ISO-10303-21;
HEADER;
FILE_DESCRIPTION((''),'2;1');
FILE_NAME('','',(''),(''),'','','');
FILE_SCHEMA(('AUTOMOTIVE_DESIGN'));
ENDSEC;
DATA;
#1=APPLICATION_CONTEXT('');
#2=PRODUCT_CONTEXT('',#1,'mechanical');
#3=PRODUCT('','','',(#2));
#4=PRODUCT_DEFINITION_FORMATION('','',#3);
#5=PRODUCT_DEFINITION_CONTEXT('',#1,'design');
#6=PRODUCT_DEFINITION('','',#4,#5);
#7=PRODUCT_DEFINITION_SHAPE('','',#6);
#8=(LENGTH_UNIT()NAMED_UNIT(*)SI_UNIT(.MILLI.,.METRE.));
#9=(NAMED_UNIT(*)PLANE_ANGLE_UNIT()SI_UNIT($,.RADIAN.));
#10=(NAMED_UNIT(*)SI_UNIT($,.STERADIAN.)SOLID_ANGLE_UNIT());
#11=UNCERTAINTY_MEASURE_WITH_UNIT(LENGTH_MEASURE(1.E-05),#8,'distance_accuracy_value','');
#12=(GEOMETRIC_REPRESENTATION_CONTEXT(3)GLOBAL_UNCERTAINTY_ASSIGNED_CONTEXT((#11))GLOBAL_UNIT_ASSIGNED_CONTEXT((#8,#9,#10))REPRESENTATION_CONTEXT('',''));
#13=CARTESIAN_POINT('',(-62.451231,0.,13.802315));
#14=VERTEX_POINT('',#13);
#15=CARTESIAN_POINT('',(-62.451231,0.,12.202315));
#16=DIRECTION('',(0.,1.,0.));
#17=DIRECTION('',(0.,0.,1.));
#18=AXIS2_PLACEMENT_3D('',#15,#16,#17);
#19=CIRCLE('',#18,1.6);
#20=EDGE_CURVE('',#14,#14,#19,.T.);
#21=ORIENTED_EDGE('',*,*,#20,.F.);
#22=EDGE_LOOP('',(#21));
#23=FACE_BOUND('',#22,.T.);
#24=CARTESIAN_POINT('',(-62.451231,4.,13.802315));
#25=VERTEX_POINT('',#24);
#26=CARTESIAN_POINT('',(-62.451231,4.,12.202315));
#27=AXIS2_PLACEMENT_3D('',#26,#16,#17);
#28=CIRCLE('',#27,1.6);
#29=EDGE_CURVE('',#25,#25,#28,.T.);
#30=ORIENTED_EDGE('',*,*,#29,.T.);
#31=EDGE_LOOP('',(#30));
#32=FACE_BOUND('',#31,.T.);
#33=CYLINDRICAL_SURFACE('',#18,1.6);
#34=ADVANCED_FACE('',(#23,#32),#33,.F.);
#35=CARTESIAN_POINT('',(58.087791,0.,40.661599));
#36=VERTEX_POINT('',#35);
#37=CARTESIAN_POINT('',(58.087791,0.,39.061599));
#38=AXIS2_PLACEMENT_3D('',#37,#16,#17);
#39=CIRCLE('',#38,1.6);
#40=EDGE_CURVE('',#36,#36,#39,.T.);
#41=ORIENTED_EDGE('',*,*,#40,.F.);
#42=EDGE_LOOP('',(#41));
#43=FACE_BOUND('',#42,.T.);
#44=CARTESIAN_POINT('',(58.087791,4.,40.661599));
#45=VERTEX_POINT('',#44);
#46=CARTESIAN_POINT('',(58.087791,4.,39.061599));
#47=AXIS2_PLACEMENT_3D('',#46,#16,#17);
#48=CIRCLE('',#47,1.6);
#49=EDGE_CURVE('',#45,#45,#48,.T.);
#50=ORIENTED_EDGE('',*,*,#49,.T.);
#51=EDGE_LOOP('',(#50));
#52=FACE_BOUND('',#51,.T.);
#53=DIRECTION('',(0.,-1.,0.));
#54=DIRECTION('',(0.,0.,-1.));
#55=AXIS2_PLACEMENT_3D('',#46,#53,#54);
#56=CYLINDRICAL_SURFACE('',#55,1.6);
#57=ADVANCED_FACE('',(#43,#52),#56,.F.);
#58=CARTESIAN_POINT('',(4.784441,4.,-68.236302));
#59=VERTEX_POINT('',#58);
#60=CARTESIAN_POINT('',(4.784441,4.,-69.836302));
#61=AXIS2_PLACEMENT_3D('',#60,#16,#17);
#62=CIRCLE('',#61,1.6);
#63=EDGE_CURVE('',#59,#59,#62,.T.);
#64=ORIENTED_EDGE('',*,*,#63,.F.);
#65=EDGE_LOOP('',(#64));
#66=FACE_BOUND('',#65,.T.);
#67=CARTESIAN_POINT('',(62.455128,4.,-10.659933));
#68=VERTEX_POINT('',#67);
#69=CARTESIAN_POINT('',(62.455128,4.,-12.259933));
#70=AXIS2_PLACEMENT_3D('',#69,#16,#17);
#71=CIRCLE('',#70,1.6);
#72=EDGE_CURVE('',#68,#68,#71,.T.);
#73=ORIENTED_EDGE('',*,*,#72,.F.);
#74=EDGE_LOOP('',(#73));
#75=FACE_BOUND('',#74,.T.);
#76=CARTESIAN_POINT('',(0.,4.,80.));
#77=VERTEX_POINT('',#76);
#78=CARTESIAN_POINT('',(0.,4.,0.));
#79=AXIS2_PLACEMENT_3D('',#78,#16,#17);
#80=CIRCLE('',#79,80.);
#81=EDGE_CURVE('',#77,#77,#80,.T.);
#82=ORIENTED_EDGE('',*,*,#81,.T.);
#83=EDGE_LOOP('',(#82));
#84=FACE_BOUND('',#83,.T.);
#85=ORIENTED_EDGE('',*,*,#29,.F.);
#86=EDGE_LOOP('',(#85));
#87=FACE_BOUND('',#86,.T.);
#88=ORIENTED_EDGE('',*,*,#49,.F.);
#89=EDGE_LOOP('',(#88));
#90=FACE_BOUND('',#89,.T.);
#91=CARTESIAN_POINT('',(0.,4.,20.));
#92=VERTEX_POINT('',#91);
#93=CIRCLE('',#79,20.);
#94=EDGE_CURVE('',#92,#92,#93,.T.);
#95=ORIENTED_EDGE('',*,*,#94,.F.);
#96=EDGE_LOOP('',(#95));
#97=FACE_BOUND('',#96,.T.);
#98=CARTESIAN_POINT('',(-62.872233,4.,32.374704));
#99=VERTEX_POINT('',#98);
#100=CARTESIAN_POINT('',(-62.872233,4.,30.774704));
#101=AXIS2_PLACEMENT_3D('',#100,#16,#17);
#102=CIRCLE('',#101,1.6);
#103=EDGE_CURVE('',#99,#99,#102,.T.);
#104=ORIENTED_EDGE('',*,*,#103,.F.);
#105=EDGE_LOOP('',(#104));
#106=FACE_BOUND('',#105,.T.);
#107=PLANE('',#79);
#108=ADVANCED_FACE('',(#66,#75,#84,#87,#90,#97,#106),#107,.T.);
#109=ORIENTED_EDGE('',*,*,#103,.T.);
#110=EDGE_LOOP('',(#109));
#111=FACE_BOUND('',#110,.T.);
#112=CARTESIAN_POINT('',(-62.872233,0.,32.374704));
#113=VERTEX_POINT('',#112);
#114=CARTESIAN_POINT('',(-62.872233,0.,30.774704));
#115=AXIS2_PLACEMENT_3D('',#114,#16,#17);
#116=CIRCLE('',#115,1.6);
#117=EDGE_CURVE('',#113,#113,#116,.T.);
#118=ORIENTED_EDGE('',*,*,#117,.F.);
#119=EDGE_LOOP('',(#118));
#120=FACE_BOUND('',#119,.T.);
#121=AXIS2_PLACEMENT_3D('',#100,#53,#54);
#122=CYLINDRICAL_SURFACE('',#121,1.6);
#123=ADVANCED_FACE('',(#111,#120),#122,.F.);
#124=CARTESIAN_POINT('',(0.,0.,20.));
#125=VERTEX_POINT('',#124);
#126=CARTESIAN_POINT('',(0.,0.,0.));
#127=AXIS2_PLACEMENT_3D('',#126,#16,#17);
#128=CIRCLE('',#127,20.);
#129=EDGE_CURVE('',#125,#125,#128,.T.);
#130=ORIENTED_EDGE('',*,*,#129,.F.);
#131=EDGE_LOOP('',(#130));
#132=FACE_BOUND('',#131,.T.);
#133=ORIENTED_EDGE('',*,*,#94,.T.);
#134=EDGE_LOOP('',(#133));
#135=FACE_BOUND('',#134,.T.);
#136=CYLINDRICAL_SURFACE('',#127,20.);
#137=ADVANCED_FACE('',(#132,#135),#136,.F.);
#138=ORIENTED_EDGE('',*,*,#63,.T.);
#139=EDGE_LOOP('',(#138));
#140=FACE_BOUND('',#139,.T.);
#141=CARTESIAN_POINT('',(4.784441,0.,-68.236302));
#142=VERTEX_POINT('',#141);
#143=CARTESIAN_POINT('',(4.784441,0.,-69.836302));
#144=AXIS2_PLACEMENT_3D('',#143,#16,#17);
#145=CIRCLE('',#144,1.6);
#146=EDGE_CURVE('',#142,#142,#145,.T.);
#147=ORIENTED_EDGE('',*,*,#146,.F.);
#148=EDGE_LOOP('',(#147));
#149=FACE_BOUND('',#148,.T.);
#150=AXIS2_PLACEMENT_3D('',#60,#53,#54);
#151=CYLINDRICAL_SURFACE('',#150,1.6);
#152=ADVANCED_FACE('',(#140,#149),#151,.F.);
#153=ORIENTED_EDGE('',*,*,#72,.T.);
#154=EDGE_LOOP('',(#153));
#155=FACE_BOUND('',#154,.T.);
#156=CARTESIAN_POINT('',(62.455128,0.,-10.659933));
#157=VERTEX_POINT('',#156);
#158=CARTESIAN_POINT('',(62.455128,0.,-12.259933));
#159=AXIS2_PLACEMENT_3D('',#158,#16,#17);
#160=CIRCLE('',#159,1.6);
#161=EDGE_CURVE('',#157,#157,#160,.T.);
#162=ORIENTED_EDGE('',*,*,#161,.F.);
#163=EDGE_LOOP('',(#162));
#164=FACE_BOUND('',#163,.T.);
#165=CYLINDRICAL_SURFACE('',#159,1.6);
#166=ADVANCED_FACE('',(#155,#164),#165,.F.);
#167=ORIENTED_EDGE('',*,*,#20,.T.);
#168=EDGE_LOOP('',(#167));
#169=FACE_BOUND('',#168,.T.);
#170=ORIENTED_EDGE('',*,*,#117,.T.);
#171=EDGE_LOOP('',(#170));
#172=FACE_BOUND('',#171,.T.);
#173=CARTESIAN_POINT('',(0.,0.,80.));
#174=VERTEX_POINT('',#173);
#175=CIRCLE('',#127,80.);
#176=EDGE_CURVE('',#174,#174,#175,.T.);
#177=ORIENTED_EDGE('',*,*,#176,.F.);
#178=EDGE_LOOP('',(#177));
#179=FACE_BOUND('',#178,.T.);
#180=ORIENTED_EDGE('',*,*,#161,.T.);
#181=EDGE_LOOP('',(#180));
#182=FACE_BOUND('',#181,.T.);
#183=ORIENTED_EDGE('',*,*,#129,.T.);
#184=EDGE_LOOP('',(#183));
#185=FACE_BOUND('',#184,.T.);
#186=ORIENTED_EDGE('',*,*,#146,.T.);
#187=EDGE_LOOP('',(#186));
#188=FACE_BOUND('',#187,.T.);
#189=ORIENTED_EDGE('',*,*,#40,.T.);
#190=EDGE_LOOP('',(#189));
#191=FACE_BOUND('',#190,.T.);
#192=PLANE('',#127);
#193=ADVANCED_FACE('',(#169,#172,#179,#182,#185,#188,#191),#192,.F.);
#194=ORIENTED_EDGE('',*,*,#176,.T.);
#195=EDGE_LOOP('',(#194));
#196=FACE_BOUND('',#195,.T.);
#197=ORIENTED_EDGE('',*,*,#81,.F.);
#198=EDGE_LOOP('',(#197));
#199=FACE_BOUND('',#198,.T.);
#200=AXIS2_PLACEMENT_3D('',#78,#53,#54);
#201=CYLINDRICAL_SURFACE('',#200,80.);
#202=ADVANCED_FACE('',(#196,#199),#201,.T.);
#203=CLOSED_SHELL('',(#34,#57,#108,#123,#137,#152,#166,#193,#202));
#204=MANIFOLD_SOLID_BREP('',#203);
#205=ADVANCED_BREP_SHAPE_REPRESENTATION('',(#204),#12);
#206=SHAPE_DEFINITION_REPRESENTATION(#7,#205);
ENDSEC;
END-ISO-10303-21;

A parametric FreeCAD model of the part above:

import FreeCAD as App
import Part
import Sketcher
from FreeCAD import Vector
Q = App.Units.Quantity

doc = App.newDocument("Part")
body = doc.addObject("PartDesign::Body", "Body")

sketch1 = body.newObject("Sketcher::SketchObject", "Sketch")
sketch1.AttachmentSupport = (doc.getObject("XZ_Plane"), [""])
sketch1.MapMode = "FlatFace"
sketch1.addGeometry(Part.Circle(Vector(0, 0, 0), Vector(0, 0, 1), 80), False)
sketch1.addGeometry(Part.Circle(Vector(-62.9, 30.8, 0), Vector(0, 0, 1), 1.6), False)
sketch1.addGeometry(Part.Circle(Vector(4.8, -69.8, 0), Vector(0, 0, 1), 1.6), False)
sketch1.addGeometry(Part.Circle(Vector(58.1, 39.1, 0), Vector(0, 0, 1), 1.6), False)
sketch1.addConstraint(Sketcher.Constraint("Coincident", 0, 3, -1, 1))
sketch1.addConstraint(Sketcher.Constraint("Equal", 1, 2))
sketch1.addConstraint(Sketcher.Constraint("Equal", 2, 3))
sketch1.addConstraint(Sketcher.Constraint("Diameter", 0, Q("160 mm")))
sketch1.addConstraint(Sketcher.Constraint("Diameter", 1, Q("3.2 mm")))
sketch1.addConstraint(Sketcher.Constraint("DistanceY", -1, 1, 3, 3, Q("39.061599 mm")))
sketch1.addConstraint(Sketcher.Constraint("DistanceY", 2, 3, 3, 3, Q("108.897901 mm")))
sketch1.addConstraint(Sketcher.Constraint("DistanceX", -1, 1, 2, 3, Q("4.784441 mm")))
sketch1.addConstraint(Sketcher.Constraint("DistanceX", -1, 1, 3, 3, Q("58.087791 mm")))
sketch1.addConstraint(Sketcher.Constraint("DistanceX", 1, 3, -1, 1, Q("62.872233 mm")))
sketch1.addConstraint(Sketcher.Constraint("DistanceY", -1, 1, 1, 3, Q("30.774704 mm")))
pad1 = body.newObject("PartDesign::Pad", "Pad")
pad1.Profile = sketch1
pad1.Length = 4
pad1.Reversed = True

sketch2 = body.newObject("Sketcher::SketchObject", "Sketch001")
sketch2.AttachmentSupport = (doc.getObject("XZ_Plane"), [""])
sketch2.MapMode = "FlatFace"
sketch2.AttachmentOffset = App.Placement(Vector(0, 0, -4), App.Rotation())
sketch2.addGeometry(Part.Circle(Vector(-62.5, 12.2, 0), Vector(0, 0, 1), 1.6), False)
sketch2.addGeometry(Part.Circle(Vector(62.5, -12.3, 0), Vector(0, 0, 1), 1.6), False)
sketch2.addConstraint(Sketcher.Constraint("Equal", 0, 1))
sketch2.addConstraint(Sketcher.Constraint("Diameter", 0, Q("3.2 mm")))
sketch2.addConstraint(Sketcher.Constraint("DistanceX", 0, 3, -1, 1, Q("62.451231 mm")))
sketch2.addConstraint(Sketcher.Constraint("DistanceX", 0, 3, 1, 3, Q("124.906359 mm")))
sketch2.addConstraint(Sketcher.Constraint("DistanceY", -1, 1, 0, 3, Q("12.202315 mm")))
sketch2.addConstraint(Sketcher.Constraint("DistanceY", 1, 3, -1, 1, Q("12.259933 mm")))
pocket1 = body.newObject("PartDesign::Pocket", "Pocket")
pocket1.Profile = sketch2
pocket1.Type = "ThroughAll"
pocket1.Midplane = True

sketch3 = body.newObject("Sketcher::SketchObject", "Sketch002")
sketch3.AttachmentSupport = (doc.getObject("XZ_Plane"), [""])
sketch3.MapMode = "FlatFace"
sketch3.AttachmentOffset = App.Placement(Vector(0, 0, -4), App.Rotation())
sketch3.addGeometry(Part.Circle(Vector(0, 0, 0), Vector(0, 0, 1), 20), False)
sketch3.addConstraint(Sketcher.Constraint("Coincident", 0, 3, -1, 1))
sketch3.addConstraint(Sketcher.Constraint("Diameter", 0, Q("40 mm")))
pocket2 = body.newObject("PartDesign::Pocket", "Pocket001")
pocket2.Profile = sketch3
pocket2.Type = "ThroughAll"
pocket2.Midplane = True

doc.recompute()
